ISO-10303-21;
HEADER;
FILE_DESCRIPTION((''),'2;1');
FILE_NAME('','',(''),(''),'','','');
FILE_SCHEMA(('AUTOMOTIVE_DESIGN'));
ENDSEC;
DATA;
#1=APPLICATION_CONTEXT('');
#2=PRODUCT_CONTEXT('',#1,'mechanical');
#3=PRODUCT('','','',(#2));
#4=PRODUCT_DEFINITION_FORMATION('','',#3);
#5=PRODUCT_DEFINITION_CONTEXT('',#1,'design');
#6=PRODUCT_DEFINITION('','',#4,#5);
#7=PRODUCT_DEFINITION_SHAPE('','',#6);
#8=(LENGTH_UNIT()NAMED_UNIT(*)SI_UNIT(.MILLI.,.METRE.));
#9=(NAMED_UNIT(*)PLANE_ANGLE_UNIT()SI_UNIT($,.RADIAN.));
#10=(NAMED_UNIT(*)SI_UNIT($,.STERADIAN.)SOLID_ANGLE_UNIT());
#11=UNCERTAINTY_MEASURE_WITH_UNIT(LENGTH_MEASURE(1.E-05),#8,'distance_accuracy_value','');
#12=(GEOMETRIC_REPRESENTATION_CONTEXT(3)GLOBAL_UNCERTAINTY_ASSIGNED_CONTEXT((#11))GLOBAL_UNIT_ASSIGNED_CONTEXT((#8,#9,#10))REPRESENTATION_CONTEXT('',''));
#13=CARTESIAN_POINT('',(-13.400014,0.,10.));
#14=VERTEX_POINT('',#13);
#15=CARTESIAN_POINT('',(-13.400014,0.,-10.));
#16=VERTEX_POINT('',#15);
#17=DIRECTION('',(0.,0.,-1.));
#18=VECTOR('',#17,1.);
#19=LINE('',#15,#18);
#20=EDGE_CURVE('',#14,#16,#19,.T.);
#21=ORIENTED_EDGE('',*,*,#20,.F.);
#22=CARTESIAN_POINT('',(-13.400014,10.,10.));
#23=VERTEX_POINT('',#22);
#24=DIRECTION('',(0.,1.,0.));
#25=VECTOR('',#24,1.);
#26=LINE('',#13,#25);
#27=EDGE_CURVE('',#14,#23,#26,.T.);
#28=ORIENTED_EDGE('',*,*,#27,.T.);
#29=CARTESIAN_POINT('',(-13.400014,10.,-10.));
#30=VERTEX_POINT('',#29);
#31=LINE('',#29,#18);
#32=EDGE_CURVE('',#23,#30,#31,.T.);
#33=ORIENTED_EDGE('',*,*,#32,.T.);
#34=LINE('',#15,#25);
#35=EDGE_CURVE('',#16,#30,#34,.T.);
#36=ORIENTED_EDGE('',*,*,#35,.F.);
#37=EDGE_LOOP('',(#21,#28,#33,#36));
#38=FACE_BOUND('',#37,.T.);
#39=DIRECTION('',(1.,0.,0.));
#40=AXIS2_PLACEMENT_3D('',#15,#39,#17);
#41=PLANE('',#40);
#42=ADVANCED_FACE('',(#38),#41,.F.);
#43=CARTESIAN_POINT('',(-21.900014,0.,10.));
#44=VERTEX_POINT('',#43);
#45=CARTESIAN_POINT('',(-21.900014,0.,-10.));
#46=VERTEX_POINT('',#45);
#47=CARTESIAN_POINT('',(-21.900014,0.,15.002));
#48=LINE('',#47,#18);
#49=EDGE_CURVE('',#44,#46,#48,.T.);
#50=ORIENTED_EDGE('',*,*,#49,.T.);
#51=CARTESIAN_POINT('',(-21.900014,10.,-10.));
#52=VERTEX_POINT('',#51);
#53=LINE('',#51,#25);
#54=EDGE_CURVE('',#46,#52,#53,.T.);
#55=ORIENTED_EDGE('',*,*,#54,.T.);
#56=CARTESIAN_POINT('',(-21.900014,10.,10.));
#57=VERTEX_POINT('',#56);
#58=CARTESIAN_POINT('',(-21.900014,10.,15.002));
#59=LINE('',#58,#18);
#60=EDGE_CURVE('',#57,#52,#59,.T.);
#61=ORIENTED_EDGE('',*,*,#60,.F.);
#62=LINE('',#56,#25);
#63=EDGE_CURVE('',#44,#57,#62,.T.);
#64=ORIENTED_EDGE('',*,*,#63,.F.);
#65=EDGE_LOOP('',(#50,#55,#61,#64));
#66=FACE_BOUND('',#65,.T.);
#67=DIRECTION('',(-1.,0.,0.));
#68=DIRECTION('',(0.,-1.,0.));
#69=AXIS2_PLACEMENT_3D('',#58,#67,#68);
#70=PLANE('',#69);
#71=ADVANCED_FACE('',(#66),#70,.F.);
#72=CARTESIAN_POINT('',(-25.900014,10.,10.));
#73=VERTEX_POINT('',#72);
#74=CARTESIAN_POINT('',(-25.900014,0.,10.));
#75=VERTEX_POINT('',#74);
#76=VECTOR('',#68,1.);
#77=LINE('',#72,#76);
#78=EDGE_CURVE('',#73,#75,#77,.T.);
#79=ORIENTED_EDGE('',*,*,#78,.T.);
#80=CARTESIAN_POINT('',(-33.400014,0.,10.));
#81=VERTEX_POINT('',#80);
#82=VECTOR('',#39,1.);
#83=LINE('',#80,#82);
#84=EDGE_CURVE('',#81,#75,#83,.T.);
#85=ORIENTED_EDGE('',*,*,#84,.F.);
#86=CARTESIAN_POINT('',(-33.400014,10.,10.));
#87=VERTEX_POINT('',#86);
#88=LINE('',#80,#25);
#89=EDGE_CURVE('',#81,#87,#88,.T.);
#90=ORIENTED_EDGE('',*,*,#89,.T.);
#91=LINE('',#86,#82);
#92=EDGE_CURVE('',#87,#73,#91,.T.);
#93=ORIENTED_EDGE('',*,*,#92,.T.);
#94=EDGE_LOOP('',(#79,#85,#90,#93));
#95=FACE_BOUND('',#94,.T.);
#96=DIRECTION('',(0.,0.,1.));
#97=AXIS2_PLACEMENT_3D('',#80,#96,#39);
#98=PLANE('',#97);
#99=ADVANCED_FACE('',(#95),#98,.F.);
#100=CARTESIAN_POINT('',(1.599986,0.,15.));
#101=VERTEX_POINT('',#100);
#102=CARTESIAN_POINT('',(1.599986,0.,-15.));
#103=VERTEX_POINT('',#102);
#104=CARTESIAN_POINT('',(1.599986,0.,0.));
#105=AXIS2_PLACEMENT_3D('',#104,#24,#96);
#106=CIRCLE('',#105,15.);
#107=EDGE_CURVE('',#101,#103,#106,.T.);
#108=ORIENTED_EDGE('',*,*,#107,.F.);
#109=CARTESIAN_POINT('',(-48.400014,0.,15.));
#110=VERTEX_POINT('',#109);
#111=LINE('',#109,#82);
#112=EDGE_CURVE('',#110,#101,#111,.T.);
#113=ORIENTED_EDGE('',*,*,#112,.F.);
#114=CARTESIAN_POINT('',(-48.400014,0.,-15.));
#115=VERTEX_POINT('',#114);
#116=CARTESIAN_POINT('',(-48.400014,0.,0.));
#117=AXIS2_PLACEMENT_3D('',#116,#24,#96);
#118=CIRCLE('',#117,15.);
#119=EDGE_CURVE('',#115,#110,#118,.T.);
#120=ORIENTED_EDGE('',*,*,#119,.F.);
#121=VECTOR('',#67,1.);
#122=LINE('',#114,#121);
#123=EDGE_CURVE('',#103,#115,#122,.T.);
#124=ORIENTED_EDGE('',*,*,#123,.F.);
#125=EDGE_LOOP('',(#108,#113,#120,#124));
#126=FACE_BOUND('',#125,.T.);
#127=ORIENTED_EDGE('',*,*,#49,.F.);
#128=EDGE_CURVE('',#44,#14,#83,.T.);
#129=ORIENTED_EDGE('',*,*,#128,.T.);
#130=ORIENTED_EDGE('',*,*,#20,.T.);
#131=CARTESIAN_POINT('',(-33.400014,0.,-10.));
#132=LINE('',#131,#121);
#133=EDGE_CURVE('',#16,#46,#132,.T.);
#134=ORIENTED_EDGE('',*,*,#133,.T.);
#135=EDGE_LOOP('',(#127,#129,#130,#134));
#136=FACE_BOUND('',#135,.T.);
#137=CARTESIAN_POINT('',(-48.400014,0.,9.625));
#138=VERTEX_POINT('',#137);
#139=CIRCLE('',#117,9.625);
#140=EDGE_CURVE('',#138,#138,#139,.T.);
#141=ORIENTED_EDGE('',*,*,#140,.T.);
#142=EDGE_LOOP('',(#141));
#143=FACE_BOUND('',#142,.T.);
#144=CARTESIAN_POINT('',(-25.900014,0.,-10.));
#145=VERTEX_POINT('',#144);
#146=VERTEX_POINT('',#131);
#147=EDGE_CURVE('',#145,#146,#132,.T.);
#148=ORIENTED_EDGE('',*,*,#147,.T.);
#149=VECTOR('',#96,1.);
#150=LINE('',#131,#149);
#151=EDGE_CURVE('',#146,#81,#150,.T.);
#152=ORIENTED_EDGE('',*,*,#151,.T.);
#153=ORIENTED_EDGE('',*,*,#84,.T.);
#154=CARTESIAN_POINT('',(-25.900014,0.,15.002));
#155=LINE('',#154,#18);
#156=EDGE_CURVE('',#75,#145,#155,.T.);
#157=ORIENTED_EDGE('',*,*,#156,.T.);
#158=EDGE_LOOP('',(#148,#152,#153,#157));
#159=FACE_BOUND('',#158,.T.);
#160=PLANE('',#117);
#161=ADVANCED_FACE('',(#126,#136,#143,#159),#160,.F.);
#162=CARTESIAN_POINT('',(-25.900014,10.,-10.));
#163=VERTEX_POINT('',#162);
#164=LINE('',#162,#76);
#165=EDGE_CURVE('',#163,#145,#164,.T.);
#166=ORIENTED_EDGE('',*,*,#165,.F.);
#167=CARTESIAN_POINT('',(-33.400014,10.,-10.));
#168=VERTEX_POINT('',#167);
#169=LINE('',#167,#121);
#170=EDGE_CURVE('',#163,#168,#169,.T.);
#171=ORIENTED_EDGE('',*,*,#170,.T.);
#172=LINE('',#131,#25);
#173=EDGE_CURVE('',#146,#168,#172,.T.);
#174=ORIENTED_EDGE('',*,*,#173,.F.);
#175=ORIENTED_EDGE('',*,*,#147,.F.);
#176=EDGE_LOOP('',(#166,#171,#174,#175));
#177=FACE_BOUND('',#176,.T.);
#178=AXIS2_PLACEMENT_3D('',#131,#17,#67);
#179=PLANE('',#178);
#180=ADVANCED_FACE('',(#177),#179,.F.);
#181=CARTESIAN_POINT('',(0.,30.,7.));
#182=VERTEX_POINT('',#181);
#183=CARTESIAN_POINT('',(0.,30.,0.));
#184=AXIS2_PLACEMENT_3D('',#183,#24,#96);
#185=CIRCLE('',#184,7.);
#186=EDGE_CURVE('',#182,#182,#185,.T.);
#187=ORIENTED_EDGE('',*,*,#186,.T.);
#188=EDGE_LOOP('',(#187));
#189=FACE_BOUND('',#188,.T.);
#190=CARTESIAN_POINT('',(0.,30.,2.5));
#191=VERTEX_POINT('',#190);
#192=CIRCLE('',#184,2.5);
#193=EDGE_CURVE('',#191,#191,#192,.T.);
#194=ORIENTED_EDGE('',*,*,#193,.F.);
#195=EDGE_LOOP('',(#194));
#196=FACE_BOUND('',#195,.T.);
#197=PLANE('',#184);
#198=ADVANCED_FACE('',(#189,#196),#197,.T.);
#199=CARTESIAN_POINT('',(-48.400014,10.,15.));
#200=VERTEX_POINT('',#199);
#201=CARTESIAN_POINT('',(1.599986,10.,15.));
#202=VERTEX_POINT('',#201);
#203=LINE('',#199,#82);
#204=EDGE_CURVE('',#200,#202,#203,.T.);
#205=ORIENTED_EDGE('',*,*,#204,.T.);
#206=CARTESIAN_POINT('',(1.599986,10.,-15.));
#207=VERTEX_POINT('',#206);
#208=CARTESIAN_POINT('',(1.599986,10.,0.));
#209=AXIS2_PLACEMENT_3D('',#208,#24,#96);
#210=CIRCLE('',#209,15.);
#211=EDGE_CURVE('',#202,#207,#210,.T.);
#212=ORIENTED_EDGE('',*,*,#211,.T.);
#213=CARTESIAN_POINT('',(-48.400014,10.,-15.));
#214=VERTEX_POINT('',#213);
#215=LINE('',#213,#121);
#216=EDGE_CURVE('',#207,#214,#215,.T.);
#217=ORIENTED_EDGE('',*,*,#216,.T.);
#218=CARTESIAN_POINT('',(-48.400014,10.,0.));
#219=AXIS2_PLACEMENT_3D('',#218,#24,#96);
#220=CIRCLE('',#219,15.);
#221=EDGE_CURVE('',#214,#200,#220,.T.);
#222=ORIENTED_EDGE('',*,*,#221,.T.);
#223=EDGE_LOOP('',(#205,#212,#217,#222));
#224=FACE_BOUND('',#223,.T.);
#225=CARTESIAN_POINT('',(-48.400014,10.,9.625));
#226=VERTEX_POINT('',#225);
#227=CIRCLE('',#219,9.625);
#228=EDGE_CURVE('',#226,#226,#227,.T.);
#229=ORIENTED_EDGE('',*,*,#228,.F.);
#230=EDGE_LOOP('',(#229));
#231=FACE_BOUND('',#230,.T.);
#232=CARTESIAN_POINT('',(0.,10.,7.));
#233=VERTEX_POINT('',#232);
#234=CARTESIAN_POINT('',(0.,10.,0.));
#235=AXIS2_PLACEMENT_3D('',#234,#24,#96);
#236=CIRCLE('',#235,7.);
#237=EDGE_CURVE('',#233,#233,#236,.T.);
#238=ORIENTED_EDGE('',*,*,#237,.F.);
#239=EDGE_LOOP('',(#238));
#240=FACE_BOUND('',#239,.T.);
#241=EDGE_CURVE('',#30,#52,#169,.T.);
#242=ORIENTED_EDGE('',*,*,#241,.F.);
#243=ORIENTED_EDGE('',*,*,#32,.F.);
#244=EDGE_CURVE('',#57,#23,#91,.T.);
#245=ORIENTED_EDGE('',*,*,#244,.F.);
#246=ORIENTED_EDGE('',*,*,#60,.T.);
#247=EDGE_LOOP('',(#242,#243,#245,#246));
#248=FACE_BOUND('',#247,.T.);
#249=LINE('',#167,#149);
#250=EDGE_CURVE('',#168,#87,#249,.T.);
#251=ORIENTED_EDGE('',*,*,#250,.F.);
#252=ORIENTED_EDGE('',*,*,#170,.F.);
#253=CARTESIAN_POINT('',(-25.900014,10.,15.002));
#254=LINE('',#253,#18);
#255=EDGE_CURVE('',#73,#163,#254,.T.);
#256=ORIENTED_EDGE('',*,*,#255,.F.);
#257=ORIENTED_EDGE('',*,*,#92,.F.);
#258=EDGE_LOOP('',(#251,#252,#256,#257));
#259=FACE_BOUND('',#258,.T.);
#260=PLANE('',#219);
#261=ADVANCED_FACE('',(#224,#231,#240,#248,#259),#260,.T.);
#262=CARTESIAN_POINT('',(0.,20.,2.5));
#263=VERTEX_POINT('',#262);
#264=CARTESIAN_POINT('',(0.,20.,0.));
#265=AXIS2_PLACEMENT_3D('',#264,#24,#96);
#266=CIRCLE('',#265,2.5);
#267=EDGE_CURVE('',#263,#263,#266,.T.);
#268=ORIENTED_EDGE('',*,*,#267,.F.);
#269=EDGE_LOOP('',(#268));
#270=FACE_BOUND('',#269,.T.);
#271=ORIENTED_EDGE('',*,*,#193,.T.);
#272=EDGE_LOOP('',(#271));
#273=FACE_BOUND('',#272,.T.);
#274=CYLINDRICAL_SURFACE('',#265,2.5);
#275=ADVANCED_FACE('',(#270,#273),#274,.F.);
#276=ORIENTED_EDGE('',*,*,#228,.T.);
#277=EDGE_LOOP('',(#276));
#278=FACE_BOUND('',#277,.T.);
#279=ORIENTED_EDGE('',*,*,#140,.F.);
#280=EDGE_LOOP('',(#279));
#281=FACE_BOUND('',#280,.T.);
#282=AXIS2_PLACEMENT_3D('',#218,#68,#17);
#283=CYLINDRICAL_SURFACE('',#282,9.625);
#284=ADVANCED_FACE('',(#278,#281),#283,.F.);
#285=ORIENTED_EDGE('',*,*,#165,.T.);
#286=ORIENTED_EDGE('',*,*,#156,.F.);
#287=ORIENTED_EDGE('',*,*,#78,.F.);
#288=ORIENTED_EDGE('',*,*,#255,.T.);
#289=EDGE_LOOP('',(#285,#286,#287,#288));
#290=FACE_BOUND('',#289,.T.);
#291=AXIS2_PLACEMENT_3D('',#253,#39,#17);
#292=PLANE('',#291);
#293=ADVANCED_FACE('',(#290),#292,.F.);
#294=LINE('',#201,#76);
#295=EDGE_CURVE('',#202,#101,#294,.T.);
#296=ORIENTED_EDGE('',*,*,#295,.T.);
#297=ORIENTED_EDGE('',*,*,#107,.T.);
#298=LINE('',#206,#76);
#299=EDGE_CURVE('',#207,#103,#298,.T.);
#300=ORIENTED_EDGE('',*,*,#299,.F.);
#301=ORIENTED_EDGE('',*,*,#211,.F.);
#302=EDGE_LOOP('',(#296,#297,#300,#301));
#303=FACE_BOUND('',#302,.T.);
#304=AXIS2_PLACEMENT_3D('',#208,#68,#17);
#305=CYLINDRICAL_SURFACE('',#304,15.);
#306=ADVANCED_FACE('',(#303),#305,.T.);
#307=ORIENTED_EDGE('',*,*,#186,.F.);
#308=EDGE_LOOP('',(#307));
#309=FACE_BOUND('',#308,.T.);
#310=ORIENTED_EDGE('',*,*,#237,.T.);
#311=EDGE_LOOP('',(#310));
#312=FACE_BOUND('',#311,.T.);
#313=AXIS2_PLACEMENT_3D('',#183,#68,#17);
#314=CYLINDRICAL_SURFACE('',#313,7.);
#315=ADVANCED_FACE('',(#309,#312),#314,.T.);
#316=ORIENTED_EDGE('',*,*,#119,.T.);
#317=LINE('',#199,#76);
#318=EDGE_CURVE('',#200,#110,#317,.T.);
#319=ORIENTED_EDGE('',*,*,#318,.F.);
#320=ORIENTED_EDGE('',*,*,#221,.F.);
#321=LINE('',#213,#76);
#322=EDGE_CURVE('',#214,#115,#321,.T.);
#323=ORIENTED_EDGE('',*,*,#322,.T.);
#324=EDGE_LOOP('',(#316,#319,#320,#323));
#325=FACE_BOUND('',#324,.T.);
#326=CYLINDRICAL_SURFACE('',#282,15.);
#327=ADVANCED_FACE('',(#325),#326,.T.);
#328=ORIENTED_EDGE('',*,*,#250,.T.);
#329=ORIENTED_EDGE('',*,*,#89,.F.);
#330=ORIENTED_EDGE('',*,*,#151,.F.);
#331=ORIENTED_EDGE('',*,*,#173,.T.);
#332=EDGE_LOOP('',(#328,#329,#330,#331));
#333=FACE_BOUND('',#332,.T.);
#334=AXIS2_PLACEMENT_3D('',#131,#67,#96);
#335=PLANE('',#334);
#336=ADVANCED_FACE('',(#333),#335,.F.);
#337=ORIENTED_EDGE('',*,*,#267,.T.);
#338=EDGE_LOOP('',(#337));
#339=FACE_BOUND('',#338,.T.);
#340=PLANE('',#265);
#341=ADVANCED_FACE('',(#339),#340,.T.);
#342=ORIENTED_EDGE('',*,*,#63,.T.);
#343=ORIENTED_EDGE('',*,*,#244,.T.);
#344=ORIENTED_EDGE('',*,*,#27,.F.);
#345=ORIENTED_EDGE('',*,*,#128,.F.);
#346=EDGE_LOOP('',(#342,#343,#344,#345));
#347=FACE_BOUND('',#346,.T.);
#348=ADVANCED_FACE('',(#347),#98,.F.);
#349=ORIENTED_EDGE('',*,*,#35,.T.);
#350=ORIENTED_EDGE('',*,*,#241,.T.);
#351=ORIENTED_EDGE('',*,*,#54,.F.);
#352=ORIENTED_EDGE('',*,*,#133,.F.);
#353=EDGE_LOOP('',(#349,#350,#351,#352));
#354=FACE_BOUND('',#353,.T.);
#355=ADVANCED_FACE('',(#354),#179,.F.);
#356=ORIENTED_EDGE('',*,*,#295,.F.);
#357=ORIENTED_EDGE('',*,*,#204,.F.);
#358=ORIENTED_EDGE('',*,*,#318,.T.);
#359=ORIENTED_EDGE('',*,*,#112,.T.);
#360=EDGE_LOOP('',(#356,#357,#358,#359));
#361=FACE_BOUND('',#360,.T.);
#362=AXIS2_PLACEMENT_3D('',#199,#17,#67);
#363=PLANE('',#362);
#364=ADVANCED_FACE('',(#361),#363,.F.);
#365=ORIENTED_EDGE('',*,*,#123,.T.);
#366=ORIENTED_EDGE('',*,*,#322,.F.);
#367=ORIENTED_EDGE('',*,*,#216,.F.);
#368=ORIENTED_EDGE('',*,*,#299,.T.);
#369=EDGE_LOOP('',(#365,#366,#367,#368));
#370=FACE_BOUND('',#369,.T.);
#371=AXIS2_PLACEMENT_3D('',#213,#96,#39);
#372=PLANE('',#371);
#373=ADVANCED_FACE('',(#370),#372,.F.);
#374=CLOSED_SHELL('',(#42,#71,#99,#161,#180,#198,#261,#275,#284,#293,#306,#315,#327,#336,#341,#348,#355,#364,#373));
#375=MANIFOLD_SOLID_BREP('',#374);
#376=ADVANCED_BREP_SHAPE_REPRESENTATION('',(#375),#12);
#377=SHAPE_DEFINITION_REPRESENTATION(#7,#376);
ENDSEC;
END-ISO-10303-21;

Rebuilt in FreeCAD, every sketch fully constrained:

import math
import FreeCAD as App
import Part
import Sketcher

V = App.Vector
Q = App.Units.Quantity


def add_polygon(sketch, points):
    """Adds a closed chain of lines whose ends are joined by coincident constraints."""
    first, n = sketch.GeometryCount, len(points)
    for a, b in zip(points, points[1:] + points[:1]):
        sketch.addGeometry(Part.LineSegment(App.Vector(*a, 0), App.Vector(*b, 0)), False)
    for i in range(n):
        sketch.addConstraint(Sketcher.Constraint("Coincident", first + i, 2, first + (i + 1) % n, 1))

doc = App.newDocument("Part")
body = doc.addObject("PartDesign::Body", "Body")

sketch1 = doc.addObject("Sketcher::SketchObject", "Sketch")
body.addObject(sketch1)
sketch1.AttachmentSupport = (doc.XZ_Plane, [""])
sketch1.MapMode = "FlatFace"
sketch1.addGeometry([
    Part.LineSegment(V(2, -15, 0), V(-48, -15, 0)),
    Part.ArcOfCircle(Part.Circle(V(-48, 0, 0), V(0, 0, 1), 15), math.radians(90), math.radians(270)),
    Part.LineSegment(V(-48, 15, 0), V(2, 15, 0)),
    Part.ArcOfCircle(Part.Circle(V(2, 0, 0), V(0, 0, 1), 15), math.radians(-90), math.radians(90)),
    Part.Circle(V(-48, 0, 0), V(0, 0, 1), 10),
], False)
sketch1.addConstraint([
    Sketcher.Constraint("Tangent", 0, 2, 1, 2),
    Sketcher.Constraint("Tangent", 1, 1, 2, 1),
    Sketcher.Constraint("Tangent", 2, 2, 3, 2),
    Sketcher.Constraint("Tangent", 3, 1, 0, 1),
    Sketcher.Constraint("Horizontal", 0),
    Sketcher.Constraint("Horizontal", 2),
    Sketcher.Constraint("Coincident", 4, 3, 1, 3),
    Sketcher.Constraint("PointOnObject", 1, 3, -1),
    Sketcher.Constraint("Radius", 1, Q("15 mm")),
    Sketcher.Constraint("Diameter", 4, Q("19.25 mm")),
    Sketcher.Constraint("DistanceX", 0, 2, 0, 1, Q("50 mm")),
    Sketcher.Constraint("DistanceX", 1, 3, -1, 1, Q("48.400014 mm")),
])
pad1 = doc.addObject("PartDesign::Pad", "Pad")
body.addObject(pad1)
pad1.Profile = sketch1
pad1.Length = 10
pad1.Reversed = True

sketch2 = doc.addObject("Sketcher::SketchObject", "Sketch001")
body.addObject(sketch2)
sketch2.AttachmentSupport = (doc.XZ_Plane, [""])
sketch2.MapMode = "FlatFace"
sketch2.AttachmentOffset = App.Placement(V(0, 0, -10), App.Rotation())
add_polygon(sketch2, [(-33, -10), (-33, 10), (-13, 10), (-13, -10)])
sketch2.addConstraint([
    Sketcher.Constraint("Vertical", 0),
    Sketcher.Constraint("Horizontal", 1),
    Sketcher.Constraint("Vertical", 2),
    Sketcher.Constraint("Horizontal", 3),
    Sketcher.Constraint("Equal", 3, 0),
    Sketcher.Constraint("DistanceX", 1, 1, 1, 2, Q("20 mm")),
    Sketcher.Constraint("DistanceY", -1, 1, 0, 2, Q("10 mm")),
    Sketcher.Constraint("DistanceX", 0, 2, -1, 1, Q("33.400014 mm")),
])
pocket1 = doc.addObject("PartDesign::Pocket", "Pocket")
body.addObject(pocket1)
pocket1.Profile = sketch2
pocket1.Type = "ThroughAll"
pocket1.Reversed = True

sketch3 = doc.addObject("Sketcher::SketchObject", "Sketch002")
body.addObject(sketch3)
sketch3.AttachmentSupport = (doc.XY_Plane, [""])
sketch3.MapMode = "FlatFace"
sketch3.AttachmentOffset = App.Placement(V(0, 0, -10), App.Rotation())
add_polygon(sketch3, [(-25.9, 10), (-25.9, 0), (-21.9, 0), (-21.9, 10)])
sketch3.addConstraint([
    Sketcher.Constraint("Vertical", 0),
    Sketcher.Constraint("Horizontal", 1),
    Sketcher.Constraint("Vertical", 2),
    Sketcher.Constraint("Horizontal", 3),
    Sketcher.Constraint("PointOnObject", 0, 2, -1),
    Sketcher.Constraint("DistanceX", 1, 1, 1, 2, Q("4 mm")),
    Sketcher.Constraint("DistanceY", 0, 2, 0, 1, Q("10 mm")),
    Sketcher.Constraint("DistanceX", 0, 2, -1, 1, Q("25.900014 mm")),
])
pad2 = doc.addObject("PartDesign::Pad", "Pad001")
body.addObject(pad2)
pad2.Profile = sketch3
pad2.Type = "UpToFirst"

sketch4 = doc.addObject("Sketcher::SketchObject", "Sketch003")
body.addObject(sketch4)
sketch4.AttachmentSupport = (doc.XZ_Plane, [""])
sketch4.MapMode = "FlatFace"
sketch4.AttachmentOffset = App.Placement(V(0, 0, -10), App.Rotation())
sketch4.addGeometry(Part.Circle(V(0, 0, 0), V(0, 0, 1), 7), False)
sketch4.addConstraint([
    Sketcher.Constraint("Coincident", 0, 3, -1, 1),
    Sketcher.Constraint("Diameter", 0, Q("14 mm")),
])
pad3 = doc.addObject("PartDesign::Pad", "Pad002")
body.addObject(pad3)
pad3.Profile = sketch4
pad3.Length = 20
pad3.Reversed = True

sketch5 = doc.addObject("Sketcher::SketchObject", "Sketch004")
body.addObject(sketch5)
sketch5.AttachmentSupport = (doc.XZ_Plane, [""])
sketch5.MapMode = "FlatFace"
sketch5.AttachmentOffset = App.Placement(V(0, 0, -30), App.Rotation())
sketch5.addGeometry(Part.Circle(V(0, 0, 0), V(0, 0, 1), 2.5), False)
sketch5.addConstraint([
    Sketcher.Constraint("Coincident", 0, 3, -1, 1),
    Sketcher.Constraint("Diameter", 0, Q("5 mm")),
])
pocket2 = doc.addObject("PartDesign::Pocket", "Pocket001")
body.addObject(pocket2)
pocket2.Profile = sketch5
pocket2.Length = 10
pocket2.Reversed = True

doc.recompute()
